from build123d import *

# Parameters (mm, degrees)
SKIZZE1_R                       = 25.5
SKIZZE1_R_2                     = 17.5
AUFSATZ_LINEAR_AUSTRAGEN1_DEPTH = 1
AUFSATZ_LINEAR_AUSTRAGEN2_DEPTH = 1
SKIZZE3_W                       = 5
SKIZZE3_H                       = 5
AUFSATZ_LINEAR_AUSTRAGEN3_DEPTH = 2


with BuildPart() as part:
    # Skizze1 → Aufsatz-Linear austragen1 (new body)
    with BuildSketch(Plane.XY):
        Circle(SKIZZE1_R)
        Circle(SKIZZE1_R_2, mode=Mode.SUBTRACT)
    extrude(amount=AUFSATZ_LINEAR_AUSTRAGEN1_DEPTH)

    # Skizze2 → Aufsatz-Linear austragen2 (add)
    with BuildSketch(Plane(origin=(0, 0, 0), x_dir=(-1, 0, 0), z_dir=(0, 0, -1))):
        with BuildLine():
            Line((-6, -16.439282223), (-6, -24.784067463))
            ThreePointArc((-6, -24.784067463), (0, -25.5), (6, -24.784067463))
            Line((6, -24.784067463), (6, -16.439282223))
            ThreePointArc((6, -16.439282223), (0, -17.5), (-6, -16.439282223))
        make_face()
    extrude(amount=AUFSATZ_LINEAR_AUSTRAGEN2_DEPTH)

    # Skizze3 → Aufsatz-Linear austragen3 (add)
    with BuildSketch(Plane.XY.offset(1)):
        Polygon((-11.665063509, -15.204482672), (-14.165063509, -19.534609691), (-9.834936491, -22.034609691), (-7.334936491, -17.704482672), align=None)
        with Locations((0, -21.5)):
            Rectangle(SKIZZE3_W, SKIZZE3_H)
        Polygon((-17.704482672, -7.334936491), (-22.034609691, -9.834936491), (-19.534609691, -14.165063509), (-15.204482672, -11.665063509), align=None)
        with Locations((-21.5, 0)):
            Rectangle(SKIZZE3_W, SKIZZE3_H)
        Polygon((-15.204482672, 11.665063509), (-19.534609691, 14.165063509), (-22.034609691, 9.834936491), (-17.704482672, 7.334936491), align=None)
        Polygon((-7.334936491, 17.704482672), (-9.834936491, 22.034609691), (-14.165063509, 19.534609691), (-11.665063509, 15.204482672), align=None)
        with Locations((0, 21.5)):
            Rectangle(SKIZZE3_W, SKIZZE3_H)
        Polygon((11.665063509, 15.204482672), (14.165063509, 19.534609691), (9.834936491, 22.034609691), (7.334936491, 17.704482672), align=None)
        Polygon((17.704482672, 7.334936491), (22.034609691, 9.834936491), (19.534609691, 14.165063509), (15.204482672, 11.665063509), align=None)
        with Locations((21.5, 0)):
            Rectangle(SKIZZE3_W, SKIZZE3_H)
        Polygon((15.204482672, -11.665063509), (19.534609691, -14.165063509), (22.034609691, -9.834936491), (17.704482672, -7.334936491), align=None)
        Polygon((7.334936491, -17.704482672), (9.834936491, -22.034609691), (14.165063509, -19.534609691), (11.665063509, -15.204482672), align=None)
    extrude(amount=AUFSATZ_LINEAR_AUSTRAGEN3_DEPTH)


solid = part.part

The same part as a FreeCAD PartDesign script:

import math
import FreeCAD as App
import Part
import Sketcher
Q = App.Units.Quantity

doc = App.newDocument("Part")
body = doc.addObject("PartDesign::Body", "Body")

# Sketch on XY plane
sketch1 = body.newObject("Sketcher::SketchObject", "Sketch")
sketch1.AttachmentSupport = (doc.getObject("XY_Plane"), [""])
sketch1.MapMode = "FlatFace"
sketch1.addGeometry([
    Part.Circle(App.Vector(0, 0, 0), App.Vector(0, 0, 1), 26),
    Part.Circle(App.Vector(0, 0, 0), App.Vector(0, 0, 1), 18),
], False)
sketch1.addConstraint([
    Sketcher.Constraint("Coincident", 0, 3, -1, 1),
    Sketcher.Constraint("Coincident", 1, 3, -1, 1),
    Sketcher.Constraint("Diameter", 0, Q("51 mm")),
    Sketcher.Constraint("Diameter", 1, Q("35 mm")),
])
pad1 = body.newObject("PartDesign::Pad", "Pad")
pad1.Profile = sketch1
pad1.Length = 1

# Sketch on XY plane
sketch2 = body.newObject("Sketcher::SketchObject", "Sketch001")
sketch2.AttachmentSupport = (doc.getObject("XY_Plane"), [""])
sketch2.MapMode = "FlatFace"
sketch2.addGeometry([
    Part.LineSegment(App.Vector(6, -16, 0), App.Vector(6, -25, 0)),
    Part.ArcOfCircle(Part.Circle(App.Vector(0, 0, 0), App.Vector(0, 0, 1), 26), math.radians(-104), math.radians(-76)),
    Part.LineSegment(App.Vector(-6, -25, 0), App.Vector(-6, -16, 0)),
    Part.ArcOfCircle(Part.Circle(App.Vector(0, 0, 0), App.Vector(0, 0, 1), 18), math.radians(-110), math.radians(-70)),
], False)
sketch2.addConstraint([
    Sketcher.Constraint("Coincident", 0, 2, 1, 2),
    Sketcher.Constraint("Coincident", 1, 1, 2, 1),
    Sketcher.Constraint("Coincident", 2, 2, 3, 1),
    Sketcher.Constraint("Coincident", 3, 2, 0, 1),
    Sketcher.Constraint("Vertical", 0),
    Sketcher.Constraint("Vertical", 2),
    Sketcher.Constraint("Coincident", 1, 3, -1, 1),
    Sketcher.Constraint("Coincident", 3, 3, -1, 1),
    Sketcher.Constraint("Horizontal", 0, 2, 1, 1),
    Sketcher.Constraint("Radius", 1, Q("25.5 mm")),
    Sketcher.Constraint("Radius", 3, Q("17.5 mm")),
    Sketcher.Constraint("DistanceX", -1, 1, 0, 2, Q("6 mm")),
])
pad2 = body.newObject("PartDesign::Pad", "Pad001")
pad2.Profile = sketch2
pad2.Length = 1
pad2.Reversed = True

# Sketch on XY plane
sketch3 = body.newObject("Sketcher::SketchObject", "Sketch002")
sketch3.AttachmentSupport = (doc.getObject("XY_Plane"), [""])
sketch3.MapMode = "FlatFace"
sketch3.AttachmentOffset = App.Placement(App.Vector(0, 0, 1), App.Rotation())
sketch3.addGeometry([
    Part.LineSegment(App.Vector(-11.7, -15.2, 0), App.Vector(-14.2, -19.5, 0)),  # 0
    Part.LineSegment(App.Vector(-14.2, -19.5, 0), App.Vector(-9.8, -22, 0)),  # 1
    Part.LineSegment(App.Vector(-9.8, -22, 0), App.Vector(-7.3, -17.7, 0)),  # 2
    Part.LineSegment(App.Vector(-7.3, -17.7, 0), App.Vector(-11.7, -15.2, 0)),  # 3
    Part.LineSegment(App.Vector(-2.5, -19, 0), App.Vector(-2.5, -24, 0)),  # 4
    Part.LineSegment(App.Vector(-2.5, -24, 0), App.Vector(2.5, -24, 0)),  # 5
    Part.LineSegment(App.Vector(2.5, -24, 0), App.Vector(2.5, -19, 0)),  # 6
    Part.LineSegment(App.Vector(2.5, -19, 0), App.Vector(-2.5, -19, 0)),  # 7
    Part.LineSegment(App.Vector(-17.7, -7.3, 0), App.Vector(-22, -9.8, 0)),  # 8
    Part.LineSegment(App.Vector(-22, -9.8, 0), App.Vector(-19.5, -14.2, 0)),  # 9
    Part.LineSegment(App.Vector(-19.5, -14.2, 0), App.Vector(-15.2, -11.7, 0)),  # 10
    Part.LineSegment(App.Vector(-15.2, -11.7, 0), App.Vector(-17.7, -7.3, 0)),  # 11
    Part.LineSegment(App.Vector(-24, 2.5, 0), App.Vector(-24, -2.5, 0)),  # 12
    Part.LineSegment(App.Vector(-24, -2.5, 0), App.Vector(-19, -2.5, 0)),  # 13
    Part.LineSegment(App.Vector(-19, -2.5, 0), App.Vector(-19, 2.5, 0)),  # 14
    Part.LineSegment(App.Vector(-19, 2.5, 0), App.Vector(-24, 2.5, 0)),  # 15
    Part.LineSegment(App.Vector(-15.2, 11.7, 0), App.Vector(-19.5, 14.2, 0)),  # 16
    Part.LineSegment(App.Vector(-19.5, 14.2, 0), App.Vector(-22, 9.8, 0)),  # 17
    Part.LineSegment(App.Vector(-22, 9.8, 0), App.Vector(-17.7, 7.3, 0)),  # 18
    Part.LineSegment(App.Vector(-17.7, 7.3, 0), App.Vector(-15.2, 11.7, 0)),  # 19
    Part.LineSegment(App.Vector(-7.3, 17.7, 0), App.Vector(-9.8, 22, 0)),  # 20
    Part.LineSegment(App.Vector(-9.8, 22, 0), App.Vector(-14.2, 19.5, 0)),  # 21
    Part.LineSegment(App.Vector(-14.2, 19.5, 0), App.Vector(-11.7, 15.2, 0)),  # 22
    Part.LineSegment(App.Vector(-11.7, 15.2, 0), App.Vector(-7.3, 17.7, 0)),  # 23
    Part.LineSegment(App.Vector(-2.5, 24, 0), App.Vector(-2.5, 19, 0)),  # 24
    Part.LineSegment(App.Vector(-2.5, 19, 0), App.Vector(2.5, 19, 0)),  # 25
    Part.LineSegment(App.Vector(2.5, 19, 0), App.Vector(2.5, 24, 0)),  # 26
    Part.LineSegment(App.Vector(2.5, 24, 0), App.Vector(-2.5, 24, 0)),  # 27
    Part.LineSegment(App.Vector(11.7, 15.2, 0), App.Vector(14.2, 19.5, 0)),  # 28
    Part.LineSegment(App.Vector(14.2, 19.5, 0), App.Vector(9.8, 22, 0)),  # 29
    Part.LineSegment(App.Vector(9.8, 22, 0), App.Vector(7.3, 17.7, 0)),  # 30
    Part.LineSegment(App.Vector(7.3, 17.7, 0), App.Vector(11.7, 15.2, 0)),  # 31
    Part.LineSegment(App.Vector(17.7, 7.3, 0), App.Vector(22, 9.8, 0)),  # 32
    Part.LineSegment(App.Vector(22, 9.8, 0), App.Vector(19.5, 14.2, 0)),  # 33
    Part.LineSegment(App.Vector(19.5, 14.2, 0), App.Vector(15.2, 11.7, 0)),  # 34
    Part.LineSegment(App.Vector(15.2, 11.7, 0), App.Vector(17.7, 7.3, 0)),  # 35
    Part.LineSegment(App.Vector(19, 2.5, 0), App.Vector(19, -2.5, 0)),  # 36
    Part.LineSegment(App.Vector(19, -2.5, 0), App.Vector(24, -2.5, 0)),  # 37
    Part.LineSegment(App.Vector(24, -2.5, 0), App.Vector(24, 2.5, 0)),  # 38
    Part.LineSegment(App.Vector(24, 2.5, 0), App.Vector(19, 2.5, 0)),  # 39
    Part.LineSegment(App.Vector(15.2, -11.7, 0), App.Vector(19.5, -14.2, 0)),  # 40
    Part.LineSegment(App.Vector(19.5, -14.2, 0), App.Vector(22, -9.8, 0)),  # 41
    Part.LineSegment(App.Vector(22, -9.8, 0), App.Vector(17.7, -7.3, 0)),  # 42
    Part.LineSegment(App.Vector(17.7, -7.3, 0), App.Vector(15.2, -11.7, 0)),  # 43
    Part.LineSegment(App.Vector(7.3, -17.7, 0), App.Vector(9.8, -22, 0)),  # 44
    Part.LineSegment(App.Vector(9.8, -22, 0), App.Vector(14.2, -19.5, 0)),  # 45
    Part.LineSegment(App.Vector(14.2, -19.5, 0), App.Vector(11.7, -15.2, 0)),  # 46
    Part.LineSegment(App.Vector(11.7, -15.2, 0), App.Vector(7.3, -17.7, 0)),  # 47
], False)
sketch3.addConstraint([
    Sketcher.Constraint("Coincident", 0, 2, 1, 1),
    Sketcher.Constraint("Coincident", 1, 2, 2, 1),
    Sketcher.Constraint("Coincident", 2, 2, 3, 1),
    Sketcher.Constraint("Coincident", 3, 2, 0, 1),
    Sketcher.Constraint("Coincident", 4, 2, 5, 1),
    Sketcher.Constraint("Coincident", 5, 2, 6, 1),
    Sketcher.Constraint("Coincident", 6, 2, 7, 1),
    Sketcher.Constraint("Coincident", 7, 2, 4, 1),
    Sketcher.Constraint("Coincident", 8, 2, 9, 1),
    Sketcher.Constraint("Coincident", 9, 2, 10, 1),
    Sketcher.Constraint("Coincident", 10, 2, 11, 1),
    Sketcher.Constraint("Coincident", 11, 2, 8, 1),
    Sketcher.Constraint("Coincident", 12, 2, 13, 1),
    Sketcher.Constraint("Coincident", 13, 2, 14, 1),
    Sketcher.Constraint("Coincident", 14, 2, 15, 1),
    Sketcher.Constraint("Coincident", 15, 2, 12, 1),
    Sketcher.Constraint("Coincident", 16, 2, 17, 1),
    Sketcher.Constraint("Coincident", 17, 2, 18, 1),
    Sketcher.Constraint("Coincident", 18, 2, 19, 1),
    Sketcher.Constraint("Coincident", 19, 2, 16, 1),
    Sketcher.Constraint("Coincident", 20, 2, 21, 1),
    Sketcher.Constraint("Coincident", 21, 2, 22, 1),
    Sketcher.Constraint("Coincident", 22, 2, 23, 1),
    Sketcher.Constraint("Coincident", 23, 2, 20, 1),
    Sketcher.Constraint("Coincident", 24, 2, 25, 1),
    Sketcher.Constraint("Coincident", 25, 2, 26, 1),
    Sketcher.Constraint("Coincident", 26, 2, 27, 1),
    Sketcher.Constraint("Coincident", 27, 2, 24, 1),
    Sketcher.Constraint("Coincident", 28, 2, 29, 1),
    Sketcher.Constraint("Coincident", 29, 2, 30, 1),
    Sketcher.Constraint("Coincident", 30, 2, 31, 1),
    Sketcher.Constraint("Coincident", 31, 2, 28, 1),
    Sketcher.Constraint("Coincident", 32, 2, 33, 1),
    Sketcher.Constraint("Coincident", 33, 2, 34, 1),
    Sketcher.Constraint("Coincident", 34, 2, 35, 1),
    Sketcher.Constraint("Coincident", 35, 2, 32, 1),
    Sketcher.Constraint("Coincident", 36, 2, 37, 1),
    Sketcher.Constraint("Coincident", 37, 2, 38, 1),
    Sketcher.Constraint("Coincident", 38, 2, 39, 1),
    Sketcher.Constraint("Coincident", 39, 2, 36, 1),
    Sketcher.Constraint("Coincident", 40, 2, 41, 1),
    Sketcher.Constraint("Coincident", 41, 2, 42, 1),
    Sketcher.Constraint("Coincident", 42, 2, 43, 1),
    Sketcher.Constraint("Coincident", 43, 2, 40, 1),
    Sketcher.Constraint("Coincident", 44, 2, 45, 1),
    Sketcher.Constraint("Coincident", 45, 2, 46, 1),
    Sketcher.Constraint("Coincident", 46, 2, 47, 1),
    Sketcher.Constraint("Coincident", 47, 2, 44, 1),
    Sketcher.Constraint("Vertical", 4),
    Sketcher.Constraint("Horizontal", 5),
    Sketcher.Constraint("Vertical", 6),
    Sketcher.Constraint("Horizontal", 7),
    Sketcher.Constraint("Vertical", 12),
    Sketcher.Constraint("Horizontal", 13),
    Sketcher.Constraint("Vertical", 14),
    Sketcher.Constraint("Horizontal", 15),
    Sketcher.Constraint("Vertical", 24),
    Sketcher.Constraint("Horizontal", 25),
    Sketcher.Constraint("Vertical", 26),
    Sketcher.Constraint("Horizontal", 27),
    Sketcher.Constraint("Vertical", 36),
    Sketcher.Constraint("Horizontal", 37),
    Sketcher.Constraint("Vertical", 38),
    Sketcher.Constraint("Horizontal", 39),
    Sketcher.Constraint("Symmetric", 6, 2, 24, 2, -1, 1),
    Sketcher.Constraint("Symmetric", 4, 2, 26, 2, -1, 1),
    Sketcher.Constraint("Symmetric", 0, 2, 28, 2, -1, 1),
    Sketcher.Constraint("Symmetric", 1, 2, 29, 2, -1, 1),
    Sketcher.Constraint("Symmetric", 2, 2, 30, 2, -1, 1),
    Sketcher.Constraint("Symmetric", 3, 2, 31, 2, -1, 1),
    Sketcher.Constraint("Symmetric", 8, 2, 32, 2, -1, 1),
    Sketcher.Constraint("Symmetric", 9, 2, 33, 2, -1, 1),
    Sketcher.Constraint("Symmetric", 10, 2, 34, 2, -1, 1),
    Sketcher.Constraint("Symmetric", 11, 2, 35, 2, -1, 1),
    Sketcher.Constraint("Symmetric", 14, 2, 36, 2, -1, 1),
    Sketcher.Constraint("Symmetric", 12, 2, 38, 2, -1, 1),
    Sketcher.Constraint("Symmetric", 16, 2, 40, 2, -1, 1),
    Sketcher.Constraint("Symmetric", 17, 2, 41, 2, -1, 1),
    Sketcher.Constraint("Symmetric", 18, 2, 42, 2, -1, 1),
    Sketcher.Constraint("Symmetric", 19, 2, 43, 2, -1, 1),
    Sketcher.Constraint("Symmetric", 20, 2, 44, 2, -1, 1),
    Sketcher.Constraint("Symmetric", 21, 2, 45, 2, -1, 1),
    Sketcher.Constraint("Symmetric", 22, 2, 46, 2, -1, 1),
    Sketcher.Constraint("Symmetric", 23, 2, 47, 2, -1, 1),
    Sketcher.Constraint("Symmetric", 21, 2, 28, 2, -2),
    Sketcher.Constraint("Symmetric", 20, 2, 29, 2, -2),
    Sketcher.Constraint("Symmetric", 23, 2, 30, 2, -2),
    Sketcher.Constraint("Symmetric", 22, 2, 31, 2, -2),
    Sketcher.Constraint("Symmetric", 17, 2, 32, 2, -2),
    Sketcher.Constraint("Symmetric", 16, 2, 33, 2, -2),
    Sketcher.Constraint("Symmetric", 19, 2, 34, 2, -2),
    Sketcher.Constraint("Symmetric", 18, 2, 35, 2, -2),
    Sketcher.Constraint("Perpendicular", 0, 1),
    Sketcher.Constraint("Perpendicular", 1, 2),
    Sketcher.Constraint("Perpendicular", 2, 3),
    Sketcher.Constraint("Perpendicular", 8, 9),
    Sketcher.Constraint("Perpendicular", 9, 10),
    Sketcher.Constraint("Perpendicular", 10, 11),
    Sketcher.Constraint("Parallel", 3, 16),
    Sketcher.Constraint("Horizontal", 13, 2, 36, 2),
    Sketcher.Constraint("Vertical", 7, 2, 24, 2),
    Sketcher.Constraint("Equal", 7, 13),
    Sketcher.Constraint("Equal", 39, 4),
    Sketcher.Constraint("Equal", 6, 12),
    Sketcher.Constraint("Equal", 0, 1),
    Sketcher.Constraint("Equal", 3, 8),
    Sketcher.Constraint("Equal", 8, 9),
    Sketcher.Constraint("DistanceX", 5, 1, 5, 2, Q("5 mm")),
    Sketcher.Constraint("Angle", 0, Q("-120 deg")),
    Sketcher.Constraint("Distance", 0, Q("5 mm")),
    Sketcher.Constraint("DistanceY", 4, 2, -1, 1, Q("24 mm")),
    Sketcher.Constraint("DistanceX", 12, 2, -1, 1, Q("24 mm")),
    Sketcher.Constraint("DistanceY", 11, 2, 16, 2, Q("21.5 mm")),
    Sketcher.Constraint("DistanceX", 23, 2, 28, 2, Q("21.5 mm")),
    Sketcher.Constraint("DistanceY", 0, 2, -1, 1, Q("19.53461 mm")),
    Sketcher.Constraint("DistanceX", 8, 2, -1, 1, Q("22.03461 mm")),
])
pad3 = body.newObject("PartDesign::Pad", "Pad002")
pad3.Profile = sketch3
pad3.Length = 2

doc.recompute()
